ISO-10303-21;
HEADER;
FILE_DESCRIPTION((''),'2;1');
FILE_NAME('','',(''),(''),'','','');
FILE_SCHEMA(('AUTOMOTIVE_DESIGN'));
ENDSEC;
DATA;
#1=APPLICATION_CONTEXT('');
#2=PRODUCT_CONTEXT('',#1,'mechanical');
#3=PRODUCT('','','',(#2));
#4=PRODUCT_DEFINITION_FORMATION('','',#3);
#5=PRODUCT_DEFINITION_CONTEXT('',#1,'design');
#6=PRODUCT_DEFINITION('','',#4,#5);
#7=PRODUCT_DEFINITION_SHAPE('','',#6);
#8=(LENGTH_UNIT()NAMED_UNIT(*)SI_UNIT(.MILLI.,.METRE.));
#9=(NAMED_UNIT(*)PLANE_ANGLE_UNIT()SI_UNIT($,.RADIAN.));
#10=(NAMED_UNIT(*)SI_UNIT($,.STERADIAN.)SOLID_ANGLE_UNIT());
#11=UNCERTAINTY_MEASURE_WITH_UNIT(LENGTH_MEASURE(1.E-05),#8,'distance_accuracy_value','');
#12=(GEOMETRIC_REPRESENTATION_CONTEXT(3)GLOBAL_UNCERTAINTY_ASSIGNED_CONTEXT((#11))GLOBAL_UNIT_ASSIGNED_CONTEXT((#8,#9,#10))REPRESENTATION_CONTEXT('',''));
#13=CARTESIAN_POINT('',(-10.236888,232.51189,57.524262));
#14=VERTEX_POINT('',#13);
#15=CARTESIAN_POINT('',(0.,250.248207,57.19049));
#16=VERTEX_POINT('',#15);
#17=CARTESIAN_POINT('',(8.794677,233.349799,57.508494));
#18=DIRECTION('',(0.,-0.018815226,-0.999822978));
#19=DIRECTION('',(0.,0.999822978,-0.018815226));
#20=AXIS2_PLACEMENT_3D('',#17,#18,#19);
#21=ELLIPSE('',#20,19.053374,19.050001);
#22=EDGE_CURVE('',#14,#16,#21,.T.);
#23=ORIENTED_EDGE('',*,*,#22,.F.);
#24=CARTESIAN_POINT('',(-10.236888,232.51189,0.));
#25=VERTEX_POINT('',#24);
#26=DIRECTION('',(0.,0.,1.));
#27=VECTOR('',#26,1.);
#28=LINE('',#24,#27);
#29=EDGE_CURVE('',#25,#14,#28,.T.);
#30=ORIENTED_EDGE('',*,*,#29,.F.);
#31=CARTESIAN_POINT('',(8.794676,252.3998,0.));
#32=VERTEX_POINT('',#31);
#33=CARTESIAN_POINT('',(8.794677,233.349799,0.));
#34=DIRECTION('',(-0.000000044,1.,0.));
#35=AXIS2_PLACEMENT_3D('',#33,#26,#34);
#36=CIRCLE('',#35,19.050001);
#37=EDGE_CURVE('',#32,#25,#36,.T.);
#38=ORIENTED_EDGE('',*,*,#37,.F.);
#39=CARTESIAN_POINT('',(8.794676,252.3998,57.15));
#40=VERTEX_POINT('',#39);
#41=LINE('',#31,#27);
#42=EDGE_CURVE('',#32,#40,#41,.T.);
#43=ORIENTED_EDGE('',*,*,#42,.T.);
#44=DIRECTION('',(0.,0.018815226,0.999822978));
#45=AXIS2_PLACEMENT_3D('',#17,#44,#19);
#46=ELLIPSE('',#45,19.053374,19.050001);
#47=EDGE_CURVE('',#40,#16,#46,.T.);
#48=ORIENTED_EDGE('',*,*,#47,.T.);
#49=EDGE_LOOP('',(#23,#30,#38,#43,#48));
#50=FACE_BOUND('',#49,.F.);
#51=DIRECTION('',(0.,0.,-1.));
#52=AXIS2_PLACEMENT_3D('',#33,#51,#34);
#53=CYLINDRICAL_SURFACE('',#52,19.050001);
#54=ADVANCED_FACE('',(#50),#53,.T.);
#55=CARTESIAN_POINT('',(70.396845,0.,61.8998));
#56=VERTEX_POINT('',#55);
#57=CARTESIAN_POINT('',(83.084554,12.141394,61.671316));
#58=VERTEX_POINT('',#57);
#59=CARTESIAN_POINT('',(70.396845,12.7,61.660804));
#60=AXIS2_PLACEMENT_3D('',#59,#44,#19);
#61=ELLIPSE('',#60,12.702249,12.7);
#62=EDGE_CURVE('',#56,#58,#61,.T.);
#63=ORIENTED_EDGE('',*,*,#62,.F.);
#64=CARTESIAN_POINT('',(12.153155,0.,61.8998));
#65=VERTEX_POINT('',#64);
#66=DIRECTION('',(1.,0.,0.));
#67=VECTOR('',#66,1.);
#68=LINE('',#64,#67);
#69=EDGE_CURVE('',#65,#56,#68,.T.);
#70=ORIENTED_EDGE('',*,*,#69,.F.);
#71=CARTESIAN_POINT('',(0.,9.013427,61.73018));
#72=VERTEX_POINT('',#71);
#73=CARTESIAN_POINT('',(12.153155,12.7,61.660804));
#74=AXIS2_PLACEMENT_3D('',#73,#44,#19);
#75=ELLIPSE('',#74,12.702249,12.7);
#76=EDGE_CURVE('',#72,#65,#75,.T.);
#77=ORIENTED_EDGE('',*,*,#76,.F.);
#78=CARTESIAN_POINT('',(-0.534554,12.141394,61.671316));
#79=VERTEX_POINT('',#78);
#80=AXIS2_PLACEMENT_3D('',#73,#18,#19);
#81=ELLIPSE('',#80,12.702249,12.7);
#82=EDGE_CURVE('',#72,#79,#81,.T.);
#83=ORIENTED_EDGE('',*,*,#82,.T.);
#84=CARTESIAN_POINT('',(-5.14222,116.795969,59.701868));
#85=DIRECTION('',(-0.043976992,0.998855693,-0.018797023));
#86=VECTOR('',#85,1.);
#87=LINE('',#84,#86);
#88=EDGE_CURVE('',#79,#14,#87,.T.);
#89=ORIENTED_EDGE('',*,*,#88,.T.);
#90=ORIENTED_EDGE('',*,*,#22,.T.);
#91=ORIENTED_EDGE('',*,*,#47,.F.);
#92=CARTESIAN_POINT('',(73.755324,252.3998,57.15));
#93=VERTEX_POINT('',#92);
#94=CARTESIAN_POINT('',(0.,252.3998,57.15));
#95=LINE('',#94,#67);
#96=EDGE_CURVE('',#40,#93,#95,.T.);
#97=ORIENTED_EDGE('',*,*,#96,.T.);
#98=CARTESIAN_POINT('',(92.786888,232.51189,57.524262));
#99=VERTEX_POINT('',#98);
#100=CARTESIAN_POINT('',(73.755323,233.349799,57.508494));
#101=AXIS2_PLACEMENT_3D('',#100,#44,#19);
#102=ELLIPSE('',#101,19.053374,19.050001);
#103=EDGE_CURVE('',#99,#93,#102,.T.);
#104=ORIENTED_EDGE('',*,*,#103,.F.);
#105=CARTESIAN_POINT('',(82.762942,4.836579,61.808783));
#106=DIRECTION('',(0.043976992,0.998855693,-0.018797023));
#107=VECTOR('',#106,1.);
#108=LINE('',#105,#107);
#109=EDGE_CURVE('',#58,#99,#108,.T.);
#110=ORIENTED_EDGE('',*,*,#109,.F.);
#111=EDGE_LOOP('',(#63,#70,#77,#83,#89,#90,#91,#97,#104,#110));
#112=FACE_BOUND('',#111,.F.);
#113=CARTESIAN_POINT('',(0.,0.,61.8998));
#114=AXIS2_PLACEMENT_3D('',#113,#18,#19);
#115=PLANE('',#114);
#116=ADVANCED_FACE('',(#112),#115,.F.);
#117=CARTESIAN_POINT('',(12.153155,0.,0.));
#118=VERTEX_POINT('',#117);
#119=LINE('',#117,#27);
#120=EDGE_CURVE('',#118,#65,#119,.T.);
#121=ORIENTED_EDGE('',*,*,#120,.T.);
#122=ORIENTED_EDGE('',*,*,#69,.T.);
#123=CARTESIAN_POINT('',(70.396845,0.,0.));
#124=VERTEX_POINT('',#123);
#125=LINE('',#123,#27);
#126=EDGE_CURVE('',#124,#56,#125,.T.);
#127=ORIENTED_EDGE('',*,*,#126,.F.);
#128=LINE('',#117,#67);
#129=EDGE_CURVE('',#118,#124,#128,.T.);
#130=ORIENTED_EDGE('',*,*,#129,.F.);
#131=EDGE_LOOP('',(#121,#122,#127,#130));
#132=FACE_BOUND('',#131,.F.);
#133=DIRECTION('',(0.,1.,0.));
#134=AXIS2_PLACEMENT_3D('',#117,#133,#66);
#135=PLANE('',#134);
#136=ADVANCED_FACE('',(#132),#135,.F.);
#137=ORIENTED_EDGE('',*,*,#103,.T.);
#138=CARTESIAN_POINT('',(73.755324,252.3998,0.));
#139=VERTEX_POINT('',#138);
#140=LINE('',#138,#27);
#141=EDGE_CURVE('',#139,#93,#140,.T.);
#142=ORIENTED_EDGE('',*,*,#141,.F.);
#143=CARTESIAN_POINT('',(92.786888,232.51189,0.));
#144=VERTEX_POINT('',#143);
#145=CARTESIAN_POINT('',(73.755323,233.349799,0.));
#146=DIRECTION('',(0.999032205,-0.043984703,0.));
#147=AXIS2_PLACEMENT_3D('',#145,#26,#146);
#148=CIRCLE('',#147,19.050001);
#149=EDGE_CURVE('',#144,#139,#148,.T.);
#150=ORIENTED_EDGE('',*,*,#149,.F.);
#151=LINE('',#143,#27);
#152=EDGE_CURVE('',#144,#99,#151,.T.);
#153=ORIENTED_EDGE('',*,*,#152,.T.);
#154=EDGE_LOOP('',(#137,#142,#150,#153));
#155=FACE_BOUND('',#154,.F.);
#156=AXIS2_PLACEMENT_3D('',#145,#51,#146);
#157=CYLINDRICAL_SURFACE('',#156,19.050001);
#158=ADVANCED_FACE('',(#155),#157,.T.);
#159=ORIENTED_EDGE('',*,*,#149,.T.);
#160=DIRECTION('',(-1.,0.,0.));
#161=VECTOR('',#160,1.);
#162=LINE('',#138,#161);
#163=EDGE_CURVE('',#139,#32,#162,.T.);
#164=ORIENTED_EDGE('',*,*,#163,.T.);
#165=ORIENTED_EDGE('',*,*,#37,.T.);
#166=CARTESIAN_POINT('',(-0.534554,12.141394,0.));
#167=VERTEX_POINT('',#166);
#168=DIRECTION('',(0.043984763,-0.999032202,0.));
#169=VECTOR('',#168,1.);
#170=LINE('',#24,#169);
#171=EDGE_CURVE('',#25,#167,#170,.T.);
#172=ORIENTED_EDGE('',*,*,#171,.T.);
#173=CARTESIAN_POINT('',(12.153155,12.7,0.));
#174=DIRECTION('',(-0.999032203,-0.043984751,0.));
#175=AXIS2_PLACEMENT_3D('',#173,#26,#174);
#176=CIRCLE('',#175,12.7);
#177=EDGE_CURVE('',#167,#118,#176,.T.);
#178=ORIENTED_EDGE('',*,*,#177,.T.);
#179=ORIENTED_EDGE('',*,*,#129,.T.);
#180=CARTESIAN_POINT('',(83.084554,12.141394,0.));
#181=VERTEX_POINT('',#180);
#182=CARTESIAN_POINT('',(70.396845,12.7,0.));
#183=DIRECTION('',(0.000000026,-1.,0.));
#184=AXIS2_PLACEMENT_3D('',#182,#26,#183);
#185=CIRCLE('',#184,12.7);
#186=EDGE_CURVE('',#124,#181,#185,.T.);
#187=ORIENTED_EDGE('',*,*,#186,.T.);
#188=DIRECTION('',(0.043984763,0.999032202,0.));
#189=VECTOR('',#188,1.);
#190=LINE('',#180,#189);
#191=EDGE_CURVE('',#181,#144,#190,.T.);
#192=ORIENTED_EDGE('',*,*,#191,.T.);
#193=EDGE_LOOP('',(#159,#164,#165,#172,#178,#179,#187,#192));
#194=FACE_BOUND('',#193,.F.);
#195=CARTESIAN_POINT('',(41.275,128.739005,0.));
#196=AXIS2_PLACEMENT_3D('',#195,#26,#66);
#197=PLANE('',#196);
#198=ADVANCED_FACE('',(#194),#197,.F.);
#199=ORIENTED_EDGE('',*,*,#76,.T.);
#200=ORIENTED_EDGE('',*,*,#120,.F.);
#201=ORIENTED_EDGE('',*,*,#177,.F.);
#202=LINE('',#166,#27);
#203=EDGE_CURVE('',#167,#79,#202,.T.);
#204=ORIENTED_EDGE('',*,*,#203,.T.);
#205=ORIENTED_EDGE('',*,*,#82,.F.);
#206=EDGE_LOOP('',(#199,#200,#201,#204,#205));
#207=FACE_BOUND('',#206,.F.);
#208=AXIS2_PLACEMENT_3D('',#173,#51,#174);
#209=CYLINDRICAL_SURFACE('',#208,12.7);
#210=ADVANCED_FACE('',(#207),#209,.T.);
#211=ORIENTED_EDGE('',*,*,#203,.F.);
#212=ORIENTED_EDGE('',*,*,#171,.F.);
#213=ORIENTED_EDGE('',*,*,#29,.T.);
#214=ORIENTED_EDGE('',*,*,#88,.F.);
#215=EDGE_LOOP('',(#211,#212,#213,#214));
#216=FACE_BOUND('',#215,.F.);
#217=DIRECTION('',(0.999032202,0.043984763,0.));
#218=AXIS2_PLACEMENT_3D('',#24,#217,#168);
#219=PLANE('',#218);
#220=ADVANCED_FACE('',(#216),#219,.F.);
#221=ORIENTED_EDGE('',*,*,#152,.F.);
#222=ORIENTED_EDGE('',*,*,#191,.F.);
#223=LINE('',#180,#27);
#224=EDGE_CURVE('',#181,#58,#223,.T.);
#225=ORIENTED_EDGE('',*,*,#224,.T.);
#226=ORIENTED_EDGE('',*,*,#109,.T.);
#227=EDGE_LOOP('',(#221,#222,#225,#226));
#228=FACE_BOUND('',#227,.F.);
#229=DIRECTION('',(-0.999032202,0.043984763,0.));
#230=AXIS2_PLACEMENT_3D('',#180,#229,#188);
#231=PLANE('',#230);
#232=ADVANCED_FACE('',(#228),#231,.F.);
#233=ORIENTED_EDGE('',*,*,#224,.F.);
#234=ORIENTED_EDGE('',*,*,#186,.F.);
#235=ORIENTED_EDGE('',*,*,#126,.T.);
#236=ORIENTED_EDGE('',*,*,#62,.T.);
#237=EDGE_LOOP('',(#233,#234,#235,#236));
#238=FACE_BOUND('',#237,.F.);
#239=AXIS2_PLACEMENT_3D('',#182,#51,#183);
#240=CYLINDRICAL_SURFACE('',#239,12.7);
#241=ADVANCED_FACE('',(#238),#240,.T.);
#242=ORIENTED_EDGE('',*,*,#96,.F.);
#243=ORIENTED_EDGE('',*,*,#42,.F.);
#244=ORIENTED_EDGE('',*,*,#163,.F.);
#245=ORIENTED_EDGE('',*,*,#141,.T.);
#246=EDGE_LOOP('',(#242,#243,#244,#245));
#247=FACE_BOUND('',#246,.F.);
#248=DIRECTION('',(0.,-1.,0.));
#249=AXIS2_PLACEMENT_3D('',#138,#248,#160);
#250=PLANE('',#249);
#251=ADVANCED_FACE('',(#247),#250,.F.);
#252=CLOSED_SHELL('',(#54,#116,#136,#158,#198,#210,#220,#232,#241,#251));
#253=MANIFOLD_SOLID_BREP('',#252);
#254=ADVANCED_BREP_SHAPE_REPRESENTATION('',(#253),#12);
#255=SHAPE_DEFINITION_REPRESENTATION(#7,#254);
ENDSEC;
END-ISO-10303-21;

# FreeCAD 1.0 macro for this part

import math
import FreeCAD as App
import Part
import Sketcher
Q = App.Units.Quantity


def add_polygon(sketch, points):
    """Adds a closed chain of lines whose ends are joined by coincident constraints."""
    first, n = sketch.GeometryCount, len(points)
    for a, b in zip(points, points[1:] + points[:1]):
        sketch.addGeometry(Part.LineSegment(App.Vector(*a, 0), App.Vector(*b, 0)), False)
    for i in range(n):
        sketch.addConstraint(Sketcher.Constraint("Coincident", first + i, 2, first + (i + 1) % n, 1))

doc = App.newDocument("Part")
body = doc.addObject("PartDesign::Body", "Body")

# Sketch on XY plane
sketch1 = body.newObject("Sketcher::SketchObject", "Sketch")
sketch1.AttachmentSupport = (doc.getObject("XY_Plane"), [""])
sketch1.MapMode = "FlatFace"
sketch1.addGeometry(Part.LineSegment(App.Vector(-10, 233, 0), App.Vector(-1, 12, 0)), False)
sketch1.addGeometry(Part.ArcOfCircle(Part.Circle(App.Vector(12, 13, 0), App.Vector(0, 0, 1), 13), math.radians(-177), math.radians(-90)), False)
sketch1.addGeometry(Part.LineSegment(App.Vector(12, 0, 0), App.Vector(70, 0, 0)), False)
sketch1.addGeometry(Part.ArcOfCircle(Part.Circle(App.Vector(70, 13, 0), App.Vector(0, 0, 1), 13), math.radians(-90), math.radians(-3)), False)
sketch1.addGeometry(Part.LineSegment(App.Vector(83, 12, 0), App.Vector(93, 233, 0)), False)
sketch1.addGeometry(Part.ArcOfCircle(Part.Circle(App.Vector(74, 233, 0), App.Vector(0, 0, 1), 19), math.radians(-3), math.radians(90)), False)
sketch1.addGeometry(Part.LineSegment(App.Vector(74, 252, 0), App.Vector(9, 252, 0)), False)
sketch1.addGeometry(Part.ArcOfCircle(Part.Circle(App.Vector(9, 233, 0), App.Vector(0, 0, 1), 19), math.radians(90), math.radians(183)), False)
sketch1.addConstraint(Sketcher.Constraint("Tangent", 0, 2, 1, 1))
sketch1.addConstraint(Sketcher.Constraint("Tangent", 1, 2, 2, 1))
sketch1.addConstraint(Sketcher.Constraint("Tangent", 2, 2, 3, 1))
sketch1.addConstraint(Sketcher.Constraint("Tangent", 3, 2, 4, 1))
sketch1.addConstraint(Sketcher.Constraint("Tangent", 4, 2, 5, 1))
sketch1.addConstraint(Sketcher.Constraint("Tangent", 5, 2, 6, 1))
sketch1.addConstraint(Sketcher.Constraint("Tangent", 6, 2, 7, 1))
sketch1.addConstraint(Sketcher.Constraint("Tangent", 7, 2, 0, 1))
sketch1.addConstraint(Sketcher.Constraint("Horizontal", 2))
sketch1.addConstraint(Sketcher.Constraint("Horizontal", 6))
sketch1.addConstraint(Sketcher.Constraint("Equal", 1, 3))
sketch1.addConstraint(Sketcher.Constraint("Equal", 5, 7))
sketch1.addConstraint(Sketcher.Constraint("PointOnObject", 1, 2, -1))
sketch1.addConstraint(Sketcher.Constraint("Horizontal", 0, 2, 3, 2))
sketch1.addConstraint(Sketcher.Constraint("Radius", 1, Q("0.5 in")))
sketch1.addConstraint(Sketcher.Constraint("Radius", 5, Q("0.7500001 in")))
sketch1.addConstraint(Sketcher.Constraint("DistanceY", -1, 1, 5, 3, Q("9.1869999 in")))
sketch1.addConstraint(Sketcher.Constraint("DistanceX", 2, 1, 2, 2, 58.24369))
sketch1.addConstraint(Sketcher.Constraint("DistanceX", 6, 2, 6, 1, 64.960648))
sketch1.addConstraint(Sketcher.Constraint("DistanceX", -1, 1, 4, 2, 92.786888))
pad1 = body.newObject("PartDesign::Pad", "Pad")
pad1.Profile = sketch1
pad1.Length = Q("2.437 in")

# Sketch on YZ plane
sketch2 = body.newObject("Sketcher::SketchObject", "Sketch001")
sketch2.AttachmentSupport = (doc.getObject("YZ_Plane"), [""])
sketch2.MapMode = "FlatFace"
add_polygon(sketch2, [(0, 61.9), (252.4, 57.1), (252.4, 61.9)])  # lines 0-2
sketch2.addConstraint(Sketcher.Constraint("Vertical", 1))
sketch2.addConstraint(Sketcher.Constraint("Horizontal", 2))
sketch2.addConstraint(Sketcher.Constraint("PointOnObject", 2, 2, -2))
sketch2.addConstraint(Sketcher.Constraint("DistanceX", 2, 2, 2, 1, Q("9.937 in")))
sketch2.addConstraint(Sketcher.Constraint("DistanceY", 1, 1, 1, 2, Q("0.187 in")))
sketch2.addConstraint(Sketcher.Constraint("DistanceY", -1, 1, 0, 2, Q("2.25 in")))
pocket1 = body.newObject("PartDesign::Pocket", "Pocket")
pocket1.Profile = sketch2
pocket1.Type = "ThroughAll"
pocket1.Reversed = True

# Sketch on YZ plane
sketch3 = body.newObject("Sketcher::SketchObject", "Sketch002")
sketch3.AttachmentSupport = (doc.getObject("YZ_Plane"), [""])
sketch3.MapMode = "FlatFace"
add_polygon(sketch3, [(0, 61.9), (252.4, 57.1), (252.4, 61.9)])  # lines 0-2
sketch3.addConstraint(Sketcher.Constraint("Vertical", 1))
sketch3.addConstraint(Sketcher.Constraint("Horizontal", 2))
sketch3.addConstraint(Sketcher.Constraint("PointOnObject", 2, 2, -2))
sketch3.addConstraint(Sketcher.Constraint("DistanceX", 2, 2, 2, 1, Q("9.937 in")))
sketch3.addConstraint(Sketcher.Constraint("DistanceY", 1, 1, 1, 2, Q("0.187 in")))
sketch3.addConstraint(Sketcher.Constraint("DistanceY", -1, 1, 0, 2, Q("2.25 in")))
pocket2 = body.newObject("PartDesign::Pocket", "Pocket001")
pocket2.Profile = sketch3
pocket2.Length = Q("1 in")

doc.recompute()
